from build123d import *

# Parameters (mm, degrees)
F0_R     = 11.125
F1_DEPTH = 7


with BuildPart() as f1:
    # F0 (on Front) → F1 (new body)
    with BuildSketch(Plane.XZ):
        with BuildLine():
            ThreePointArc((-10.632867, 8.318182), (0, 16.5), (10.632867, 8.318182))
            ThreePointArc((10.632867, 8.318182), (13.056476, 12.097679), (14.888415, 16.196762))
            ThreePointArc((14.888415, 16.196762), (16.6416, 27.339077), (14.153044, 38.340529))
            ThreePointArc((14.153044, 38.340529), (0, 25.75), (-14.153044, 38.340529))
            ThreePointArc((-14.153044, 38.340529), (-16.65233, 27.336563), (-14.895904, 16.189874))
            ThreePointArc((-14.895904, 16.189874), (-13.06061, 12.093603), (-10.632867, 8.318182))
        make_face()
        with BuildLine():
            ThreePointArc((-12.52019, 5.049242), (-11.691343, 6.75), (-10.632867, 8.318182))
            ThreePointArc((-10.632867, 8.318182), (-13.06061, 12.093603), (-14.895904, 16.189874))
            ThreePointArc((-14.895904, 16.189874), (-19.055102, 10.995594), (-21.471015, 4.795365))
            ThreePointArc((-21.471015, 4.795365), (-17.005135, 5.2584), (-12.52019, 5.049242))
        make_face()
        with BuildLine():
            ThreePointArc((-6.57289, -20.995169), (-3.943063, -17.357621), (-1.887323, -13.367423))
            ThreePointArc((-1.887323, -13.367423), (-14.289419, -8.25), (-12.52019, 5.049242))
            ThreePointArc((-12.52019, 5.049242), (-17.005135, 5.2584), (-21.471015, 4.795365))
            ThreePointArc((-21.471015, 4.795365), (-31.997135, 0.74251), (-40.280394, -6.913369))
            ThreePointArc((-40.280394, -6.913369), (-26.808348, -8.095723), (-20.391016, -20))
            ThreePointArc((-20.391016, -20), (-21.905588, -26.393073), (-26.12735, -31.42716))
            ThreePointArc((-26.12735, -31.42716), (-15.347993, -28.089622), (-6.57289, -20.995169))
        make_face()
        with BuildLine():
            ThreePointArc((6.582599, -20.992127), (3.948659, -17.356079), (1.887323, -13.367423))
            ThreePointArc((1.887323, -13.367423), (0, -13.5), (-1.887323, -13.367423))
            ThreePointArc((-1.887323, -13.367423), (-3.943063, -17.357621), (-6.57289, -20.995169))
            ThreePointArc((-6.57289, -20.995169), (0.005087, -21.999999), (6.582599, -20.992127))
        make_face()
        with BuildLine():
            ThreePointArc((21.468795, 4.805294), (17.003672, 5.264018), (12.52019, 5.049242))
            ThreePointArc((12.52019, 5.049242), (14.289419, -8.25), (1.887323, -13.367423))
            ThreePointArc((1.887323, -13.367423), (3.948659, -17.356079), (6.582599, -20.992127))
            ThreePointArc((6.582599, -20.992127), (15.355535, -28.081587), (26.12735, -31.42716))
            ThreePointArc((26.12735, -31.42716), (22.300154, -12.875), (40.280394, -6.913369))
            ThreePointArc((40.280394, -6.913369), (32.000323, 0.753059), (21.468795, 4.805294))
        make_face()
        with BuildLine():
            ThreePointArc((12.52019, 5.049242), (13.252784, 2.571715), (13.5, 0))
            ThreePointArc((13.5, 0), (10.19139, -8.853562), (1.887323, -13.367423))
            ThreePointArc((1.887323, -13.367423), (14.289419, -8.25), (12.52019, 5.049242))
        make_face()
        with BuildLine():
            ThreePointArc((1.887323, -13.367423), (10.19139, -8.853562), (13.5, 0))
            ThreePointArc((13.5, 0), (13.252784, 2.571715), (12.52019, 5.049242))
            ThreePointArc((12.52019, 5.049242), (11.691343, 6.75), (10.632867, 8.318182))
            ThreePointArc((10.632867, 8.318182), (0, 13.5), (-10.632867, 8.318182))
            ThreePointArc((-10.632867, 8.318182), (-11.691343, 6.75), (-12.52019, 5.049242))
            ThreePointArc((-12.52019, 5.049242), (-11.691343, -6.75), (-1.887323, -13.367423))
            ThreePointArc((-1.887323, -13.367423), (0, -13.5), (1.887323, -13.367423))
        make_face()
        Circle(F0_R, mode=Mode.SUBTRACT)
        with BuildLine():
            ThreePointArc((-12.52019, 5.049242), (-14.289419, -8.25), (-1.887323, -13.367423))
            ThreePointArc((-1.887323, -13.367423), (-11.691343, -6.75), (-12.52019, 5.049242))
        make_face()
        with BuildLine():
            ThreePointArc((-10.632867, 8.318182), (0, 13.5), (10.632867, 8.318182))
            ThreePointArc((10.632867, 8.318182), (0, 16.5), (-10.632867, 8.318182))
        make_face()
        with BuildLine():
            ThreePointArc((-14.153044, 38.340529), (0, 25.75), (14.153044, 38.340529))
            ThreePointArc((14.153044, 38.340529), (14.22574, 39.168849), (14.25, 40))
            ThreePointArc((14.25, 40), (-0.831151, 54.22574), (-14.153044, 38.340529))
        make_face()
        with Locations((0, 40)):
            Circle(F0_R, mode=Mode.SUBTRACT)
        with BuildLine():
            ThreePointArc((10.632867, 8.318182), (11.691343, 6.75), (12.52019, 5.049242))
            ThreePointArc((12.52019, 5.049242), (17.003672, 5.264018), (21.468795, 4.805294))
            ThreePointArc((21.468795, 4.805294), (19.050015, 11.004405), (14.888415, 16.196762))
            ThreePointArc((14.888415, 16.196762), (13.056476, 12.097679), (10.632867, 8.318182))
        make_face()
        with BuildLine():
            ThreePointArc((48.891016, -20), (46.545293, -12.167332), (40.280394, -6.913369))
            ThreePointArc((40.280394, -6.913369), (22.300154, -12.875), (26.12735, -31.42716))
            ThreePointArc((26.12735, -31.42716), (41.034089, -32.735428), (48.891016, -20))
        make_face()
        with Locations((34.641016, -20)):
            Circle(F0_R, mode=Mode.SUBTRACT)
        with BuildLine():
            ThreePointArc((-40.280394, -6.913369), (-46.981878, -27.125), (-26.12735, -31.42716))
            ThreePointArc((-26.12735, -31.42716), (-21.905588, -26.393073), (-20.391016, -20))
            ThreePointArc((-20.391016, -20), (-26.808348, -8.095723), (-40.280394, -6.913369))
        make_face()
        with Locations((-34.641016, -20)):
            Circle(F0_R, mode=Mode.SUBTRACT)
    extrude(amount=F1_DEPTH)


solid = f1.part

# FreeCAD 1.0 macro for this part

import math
import FreeCAD as App
import Part
import Sketcher
from FreeCAD import Vector
Q = App.Units.Quantity

doc = App.newDocument("Part")
body = doc.addObject("PartDesign::Body", "Body")

sketch1 = body.newObject("Sketcher::SketchObject", "Sketch")
sketch1.AttachmentSupport = (doc.getObject("XZ_Plane"), [""])
sketch1.MapMode = "FlatFace"
sketch1.addGeometry(Part.ArcOfCircle(Part.Circle(Vector(16.188772, -24.628724, 0), Vector(0, 0, 1), 29.903847), math.radians(36.328257), math.radians(79.830157)), False)
sketch1.addGeometry(Part.ArcOfCircle(Part.Circle(Vector(-0.000002, -0.000001, 0), Vector(0, 0, 1), 22.000002), math.radians(12.616395), math.radians(47.410104)), False)
sketch1.addGeometry(Part.ArcOfCircle(Part.Circle(Vector(-13.318904, 26.344121, 0), Vector(0, 0, 1), 29.97702), math.radians(-19.785792), math.radians(23.589858)), False)
sketch1.addGeometry(Part.ArcOfCircle(Part.Circle(Vector(-0.000179, 40.000011, 0), Vector(0, 0, 1), 14.250179), math.radians(-6.687463), math.radians(-0.000044)), False)
sketch1.addGeometry(Part.ArcOfCircle(Part.Circle(Vector(0, 40, 0), Vector(0, 0, 1), 14.25), math.radians(0.000001), math.radians(186.687502)), False)
sketch1.addGeometry(Part.ArcOfCircle(Part.Circle(Vector(13.234714, 26.33425, 0), Vector(0, 0, 1), 29.903846), math.radians(156.328256), math.radians(199.83016)), False)
sketch1.addGeometry(Part.ArcOfCircle(Part.Circle(Vector(-0.000003, 0, 0), Vector(0, 0, 1), 21.999997), math.radians(132.616388), math.radians(167.410103)), False)
sketch1.addGeometry(Part.ArcOfCircle(Part.Circle(Vector(-16.155225, -24.70657, 0), Vector(0, 0, 1), 29.977021), math.radians(100.214211), math.radians(143.589858)), False)
sketch1.addGeometry(Part.ArcOfCircle(Part.Circle(Vector(-34.641016, -20, 0), Vector(0, 0, 1), 14.25), math.radians(113.312497), math.radians(306.687504)), False)
sketch1.addGeometry(Part.ArcOfCircle(Part.Circle(Vector(-29.423489, -1.70552, 0), Vector(0, 0, 1), 29.903853), math.radians(-83.67174), math.radians(-40.169847)), False)
sketch1.addGeometry(Part.ArcOfCircle(Part.Circle(Vector(0, 0.000011, 0), Vector(0, 0, 1), 22.000011), math.radians(-107.383596), math.radians(-72.589906)), False)
sketch1.addGeometry(Part.ArcOfCircle(Part.Circle(Vector(29.47413, -1.637549, 0), Vector(0, 0, 1), 29.977022), math.radians(-139.785788), math.radians(-96.410142)), False)
sketch1.addGeometry(Part.ArcOfCircle(Part.Circle(Vector(34.641016, -20.000001, 0), Vector(0, 0, 1), 14.25), math.radians(-126.687506), math.radians(0.000002)), False)
sketch1.addGeometry(Part.ArcOfCircle(Part.Circle(Vector(34.641016, -20, 0), Vector(0, 0, 1), 14.25), math.radians(0), math.radians(66.687503)), False)
sketch1.addGeometry(Part.Circle(Vector(-34.641016, -20, 0), Vector(0, 0, 1), 11.125), False)
sketch1.addGeometry(Part.Circle(Vector(34.641016, -20, 0), Vector(0, 0, 1), 11.125), False)
sketch1.addGeometry(Part.Circle(Vector(0, 0, 0), Vector(0, 0, 1), 11.125), False)
sketch1.addGeometry(Part.Circle(Vector(0, 40, 0), Vector(0, 0, 1), 11.125), False)
sketch1.addConstraint(Sketcher.Constraint("Coincident", 0, 2, 1, 1))
sketch1.addConstraint(Sketcher.Constraint("Coincident", 1, 2, 2, 1))
sketch1.addConstraint(Sketcher.Constraint("Coincident", 2, 2, 3, 1))
sketch1.addConstraint(Sketcher.Constraint("Coincident", 3, 2, 4, 1))
sketch1.addConstraint(Sketcher.Constraint("Coincident", 4, 2, 5, 1))
sketch1.addConstraint(Sketcher.Constraint("Coincident", 5, 2, 6, 1))
sketch1.addConstraint(Sketcher.Constraint("Coincident", 6, 2, 7, 1))
sketch1.addConstraint(Sketcher.Constraint("Coincident", 7, 2, 8, 1))
sketch1.addConstraint(Sketcher.Constraint("Coincident", 8, 2, 9, 1))
sketch1.addConstraint(Sketcher.Constraint("Coincident", 9, 2, 10, 1))
sketch1.addConstraint(Sketcher.Constraint("Coincident", 10, 2, 11, 1))
sketch1.addConstraint(Sketcher.Constraint("Coincident", 11, 2, 12, 1))
sketch1.addConstraint(Sketcher.Constraint("Coincident", 12, 2, 13, 1))
sketch1.addConstraint(Sketcher.Constraint("Coincident", 13, 2, 0, 1))
sketch1.addConstraint(Sketcher.Constraint("Coincident", 1, 3, -1, 1))
sketch1.addConstraint(Sketcher.Constraint("Coincident", 6, 3, -1, 1))
sketch1.addConstraint(Sketcher.Constraint("Coincident", 16, 3, -1, 1))
sketch1.addConstraint(Sketcher.Constraint("Coincident", 13, 3, 12, 3))
sketch1.addConstraint(Sketcher.Constraint("Coincident", 14, 3, 8, 3))
sketch1.addConstraint(Sketcher.Constraint("Coincident", 15, 3, 12, 3))
sketch1.addConstraint(Sketcher.Constraint("Coincident", 17, 3, 4, 3))
sketch1.addConstraint(Sketcher.Constraint("PointOnObject", 4, 3, -2))
sketch1.addConstraint(Sketcher.Constraint("PointOnObject", 10, 3, -2))
sketch1.addConstraint(Sketcher.Constraint("Radius", 1, Q("22.000002 mm")))
sketch1.addConstraint(Sketcher.Constraint("Diameter", 14, Q("22.25 mm")))
sketch1.addConstraint(Sketcher.Constraint("Diameter", 15, Q("22.25 mm")))
sketch1.addConstraint(Sketcher.Constraint("Diameter", 16, Q("22.25 mm")))
sketch1.addConstraint(Sketcher.Constraint("Diameter", 17, Q("22.25 mm")))
sketch1.addConstraint(Sketcher.Constraint("Radius", 4, Q("14.25 mm")))
sketch1.addConstraint(Sketcher.Constraint("Radius", 8, Q("14.25 mm")))
sketch1.addConstraint(Sketcher.Constraint("Radius", 12, Q("14.25 mm")))
sketch1.addConstraint(Sketcher.Constraint("DistanceY", -1, 1, 4, 3, Q("40 mm")))
sketch1.addConstraint(Sketcher.Constraint("DistanceY", 8, 3, -1, 1, Q("20 mm")))
sketch1.addConstraint(Sketcher.Constraint("DistanceY", 12, 3, -1, 1, Q("20.000001 mm")))
sketch1.addConstraint(Sketcher.Constraint("DistanceY", -1, 1, 3, 2, Q("40 mm")))
sketch1.addConstraint(Sketcher.Constraint("DistanceY", 12, 2, -1, 1, Q("20 mm")))
sketch1.addConstraint(Sketcher.Constraint("Radius", 2, Q("29.97702 mm")))
sketch1.addConstraint(Sketcher.Constraint("Radius", 3, Q("14.250179 mm")))
sketch1.addConstraint(Sketcher.Constraint("Radius", 7, Q("29.977021 mm")))
sketch1.addConstraint(Sketcher.Constraint("Radius", 10, Q("22.000011 mm")))
sketch1.addConstraint(Sketcher.Constraint("Radius", 0, Q("29.903847 mm")))
sketch1.addConstraint(Sketcher.Constraint("Radius", 5, Q("29.903846 mm")))
sketch1.addConstraint(Sketcher.Constraint("Radius", 6, Q("21.999997 mm")))
sketch1.addConstraint(Sketcher.Constraint("Radius", 9, Q("29.903853 mm")))
sketch1.addConstraint(Sketcher.Constraint("Radius", 11, Q("29.977022 mm")))
sketch1.addConstraint(Sketcher.Constraint("DistanceX", 5, 2, 2, 3, Q("1.577 mm")))
sketch1.addConstraint(Sketcher.Constraint("DistanceX", -1, 1, 10, 2, Q("6.582599 mm")))
sketch1.addConstraint(Sketcher.Constraint("DistanceX", 2, 3, 6, 3, Q("13.3189 mm")))
sketch1.addConstraint(Sketcher.Constraint("DistanceY", 11, 3, 5, 3, Q("27.971799 mm")))
sketch1.addConstraint(Sketcher.Constraint("DistanceX", 6, 3, 0, 2, Q("21.468798 mm")))
sketch1.addConstraint(Sketcher.Constraint("DistanceX", 5, 3, 1, 2, Q("1.653701 mm")))
sketch1.addConstraint(Sketcher.Constraint("DistanceY", 7, 3, 7, 2, Q("17.793201 mm")))
sketch1.addConstraint(Sketcher.Constraint("DistanceY", 7, 3, 9, 2, Q("3.711401 mm")))
sketch1.addConstraint(Sketcher.Constraint("DistanceX", -1, 1, 0, 3, Q("16.188772 mm")))
sketch1.addConstraint(Sketcher.Constraint("DistanceY", -1, 1, 2, 3, Q("26.344121 mm")))
sketch1.addConstraint(Sketcher.Constraint("DistanceY", -1, 1, 3, 3, Q("40.000011 mm")))
sketch1.addConstraint(Sketcher.Constraint("DistanceY", 7, 3, -1, 1, Q("24.70657 mm")))
sketch1.addConstraint(Sketcher.Constraint("DistanceX", 9, 3, -1, 1, Q("29.423489 mm")))
sketch1.addConstraint(Sketcher.Constraint("DistanceY", 9, 3, -1, 1, Q("1.70552 mm")))
sketch1.addConstraint(Sketcher.Constraint("DistanceX", 8, 2, -1, 1, Q("26.12735 mm")))
sketch1.addConstraint(Sketcher.Constraint("DistanceX", -1, 1, 11, 2, Q("26.12735 mm")))
pad1 = body.newObject("PartDesign::Pad", "Pad")
pad1.Profile = sketch1
pad1.Length = 7

doc.recompute()
